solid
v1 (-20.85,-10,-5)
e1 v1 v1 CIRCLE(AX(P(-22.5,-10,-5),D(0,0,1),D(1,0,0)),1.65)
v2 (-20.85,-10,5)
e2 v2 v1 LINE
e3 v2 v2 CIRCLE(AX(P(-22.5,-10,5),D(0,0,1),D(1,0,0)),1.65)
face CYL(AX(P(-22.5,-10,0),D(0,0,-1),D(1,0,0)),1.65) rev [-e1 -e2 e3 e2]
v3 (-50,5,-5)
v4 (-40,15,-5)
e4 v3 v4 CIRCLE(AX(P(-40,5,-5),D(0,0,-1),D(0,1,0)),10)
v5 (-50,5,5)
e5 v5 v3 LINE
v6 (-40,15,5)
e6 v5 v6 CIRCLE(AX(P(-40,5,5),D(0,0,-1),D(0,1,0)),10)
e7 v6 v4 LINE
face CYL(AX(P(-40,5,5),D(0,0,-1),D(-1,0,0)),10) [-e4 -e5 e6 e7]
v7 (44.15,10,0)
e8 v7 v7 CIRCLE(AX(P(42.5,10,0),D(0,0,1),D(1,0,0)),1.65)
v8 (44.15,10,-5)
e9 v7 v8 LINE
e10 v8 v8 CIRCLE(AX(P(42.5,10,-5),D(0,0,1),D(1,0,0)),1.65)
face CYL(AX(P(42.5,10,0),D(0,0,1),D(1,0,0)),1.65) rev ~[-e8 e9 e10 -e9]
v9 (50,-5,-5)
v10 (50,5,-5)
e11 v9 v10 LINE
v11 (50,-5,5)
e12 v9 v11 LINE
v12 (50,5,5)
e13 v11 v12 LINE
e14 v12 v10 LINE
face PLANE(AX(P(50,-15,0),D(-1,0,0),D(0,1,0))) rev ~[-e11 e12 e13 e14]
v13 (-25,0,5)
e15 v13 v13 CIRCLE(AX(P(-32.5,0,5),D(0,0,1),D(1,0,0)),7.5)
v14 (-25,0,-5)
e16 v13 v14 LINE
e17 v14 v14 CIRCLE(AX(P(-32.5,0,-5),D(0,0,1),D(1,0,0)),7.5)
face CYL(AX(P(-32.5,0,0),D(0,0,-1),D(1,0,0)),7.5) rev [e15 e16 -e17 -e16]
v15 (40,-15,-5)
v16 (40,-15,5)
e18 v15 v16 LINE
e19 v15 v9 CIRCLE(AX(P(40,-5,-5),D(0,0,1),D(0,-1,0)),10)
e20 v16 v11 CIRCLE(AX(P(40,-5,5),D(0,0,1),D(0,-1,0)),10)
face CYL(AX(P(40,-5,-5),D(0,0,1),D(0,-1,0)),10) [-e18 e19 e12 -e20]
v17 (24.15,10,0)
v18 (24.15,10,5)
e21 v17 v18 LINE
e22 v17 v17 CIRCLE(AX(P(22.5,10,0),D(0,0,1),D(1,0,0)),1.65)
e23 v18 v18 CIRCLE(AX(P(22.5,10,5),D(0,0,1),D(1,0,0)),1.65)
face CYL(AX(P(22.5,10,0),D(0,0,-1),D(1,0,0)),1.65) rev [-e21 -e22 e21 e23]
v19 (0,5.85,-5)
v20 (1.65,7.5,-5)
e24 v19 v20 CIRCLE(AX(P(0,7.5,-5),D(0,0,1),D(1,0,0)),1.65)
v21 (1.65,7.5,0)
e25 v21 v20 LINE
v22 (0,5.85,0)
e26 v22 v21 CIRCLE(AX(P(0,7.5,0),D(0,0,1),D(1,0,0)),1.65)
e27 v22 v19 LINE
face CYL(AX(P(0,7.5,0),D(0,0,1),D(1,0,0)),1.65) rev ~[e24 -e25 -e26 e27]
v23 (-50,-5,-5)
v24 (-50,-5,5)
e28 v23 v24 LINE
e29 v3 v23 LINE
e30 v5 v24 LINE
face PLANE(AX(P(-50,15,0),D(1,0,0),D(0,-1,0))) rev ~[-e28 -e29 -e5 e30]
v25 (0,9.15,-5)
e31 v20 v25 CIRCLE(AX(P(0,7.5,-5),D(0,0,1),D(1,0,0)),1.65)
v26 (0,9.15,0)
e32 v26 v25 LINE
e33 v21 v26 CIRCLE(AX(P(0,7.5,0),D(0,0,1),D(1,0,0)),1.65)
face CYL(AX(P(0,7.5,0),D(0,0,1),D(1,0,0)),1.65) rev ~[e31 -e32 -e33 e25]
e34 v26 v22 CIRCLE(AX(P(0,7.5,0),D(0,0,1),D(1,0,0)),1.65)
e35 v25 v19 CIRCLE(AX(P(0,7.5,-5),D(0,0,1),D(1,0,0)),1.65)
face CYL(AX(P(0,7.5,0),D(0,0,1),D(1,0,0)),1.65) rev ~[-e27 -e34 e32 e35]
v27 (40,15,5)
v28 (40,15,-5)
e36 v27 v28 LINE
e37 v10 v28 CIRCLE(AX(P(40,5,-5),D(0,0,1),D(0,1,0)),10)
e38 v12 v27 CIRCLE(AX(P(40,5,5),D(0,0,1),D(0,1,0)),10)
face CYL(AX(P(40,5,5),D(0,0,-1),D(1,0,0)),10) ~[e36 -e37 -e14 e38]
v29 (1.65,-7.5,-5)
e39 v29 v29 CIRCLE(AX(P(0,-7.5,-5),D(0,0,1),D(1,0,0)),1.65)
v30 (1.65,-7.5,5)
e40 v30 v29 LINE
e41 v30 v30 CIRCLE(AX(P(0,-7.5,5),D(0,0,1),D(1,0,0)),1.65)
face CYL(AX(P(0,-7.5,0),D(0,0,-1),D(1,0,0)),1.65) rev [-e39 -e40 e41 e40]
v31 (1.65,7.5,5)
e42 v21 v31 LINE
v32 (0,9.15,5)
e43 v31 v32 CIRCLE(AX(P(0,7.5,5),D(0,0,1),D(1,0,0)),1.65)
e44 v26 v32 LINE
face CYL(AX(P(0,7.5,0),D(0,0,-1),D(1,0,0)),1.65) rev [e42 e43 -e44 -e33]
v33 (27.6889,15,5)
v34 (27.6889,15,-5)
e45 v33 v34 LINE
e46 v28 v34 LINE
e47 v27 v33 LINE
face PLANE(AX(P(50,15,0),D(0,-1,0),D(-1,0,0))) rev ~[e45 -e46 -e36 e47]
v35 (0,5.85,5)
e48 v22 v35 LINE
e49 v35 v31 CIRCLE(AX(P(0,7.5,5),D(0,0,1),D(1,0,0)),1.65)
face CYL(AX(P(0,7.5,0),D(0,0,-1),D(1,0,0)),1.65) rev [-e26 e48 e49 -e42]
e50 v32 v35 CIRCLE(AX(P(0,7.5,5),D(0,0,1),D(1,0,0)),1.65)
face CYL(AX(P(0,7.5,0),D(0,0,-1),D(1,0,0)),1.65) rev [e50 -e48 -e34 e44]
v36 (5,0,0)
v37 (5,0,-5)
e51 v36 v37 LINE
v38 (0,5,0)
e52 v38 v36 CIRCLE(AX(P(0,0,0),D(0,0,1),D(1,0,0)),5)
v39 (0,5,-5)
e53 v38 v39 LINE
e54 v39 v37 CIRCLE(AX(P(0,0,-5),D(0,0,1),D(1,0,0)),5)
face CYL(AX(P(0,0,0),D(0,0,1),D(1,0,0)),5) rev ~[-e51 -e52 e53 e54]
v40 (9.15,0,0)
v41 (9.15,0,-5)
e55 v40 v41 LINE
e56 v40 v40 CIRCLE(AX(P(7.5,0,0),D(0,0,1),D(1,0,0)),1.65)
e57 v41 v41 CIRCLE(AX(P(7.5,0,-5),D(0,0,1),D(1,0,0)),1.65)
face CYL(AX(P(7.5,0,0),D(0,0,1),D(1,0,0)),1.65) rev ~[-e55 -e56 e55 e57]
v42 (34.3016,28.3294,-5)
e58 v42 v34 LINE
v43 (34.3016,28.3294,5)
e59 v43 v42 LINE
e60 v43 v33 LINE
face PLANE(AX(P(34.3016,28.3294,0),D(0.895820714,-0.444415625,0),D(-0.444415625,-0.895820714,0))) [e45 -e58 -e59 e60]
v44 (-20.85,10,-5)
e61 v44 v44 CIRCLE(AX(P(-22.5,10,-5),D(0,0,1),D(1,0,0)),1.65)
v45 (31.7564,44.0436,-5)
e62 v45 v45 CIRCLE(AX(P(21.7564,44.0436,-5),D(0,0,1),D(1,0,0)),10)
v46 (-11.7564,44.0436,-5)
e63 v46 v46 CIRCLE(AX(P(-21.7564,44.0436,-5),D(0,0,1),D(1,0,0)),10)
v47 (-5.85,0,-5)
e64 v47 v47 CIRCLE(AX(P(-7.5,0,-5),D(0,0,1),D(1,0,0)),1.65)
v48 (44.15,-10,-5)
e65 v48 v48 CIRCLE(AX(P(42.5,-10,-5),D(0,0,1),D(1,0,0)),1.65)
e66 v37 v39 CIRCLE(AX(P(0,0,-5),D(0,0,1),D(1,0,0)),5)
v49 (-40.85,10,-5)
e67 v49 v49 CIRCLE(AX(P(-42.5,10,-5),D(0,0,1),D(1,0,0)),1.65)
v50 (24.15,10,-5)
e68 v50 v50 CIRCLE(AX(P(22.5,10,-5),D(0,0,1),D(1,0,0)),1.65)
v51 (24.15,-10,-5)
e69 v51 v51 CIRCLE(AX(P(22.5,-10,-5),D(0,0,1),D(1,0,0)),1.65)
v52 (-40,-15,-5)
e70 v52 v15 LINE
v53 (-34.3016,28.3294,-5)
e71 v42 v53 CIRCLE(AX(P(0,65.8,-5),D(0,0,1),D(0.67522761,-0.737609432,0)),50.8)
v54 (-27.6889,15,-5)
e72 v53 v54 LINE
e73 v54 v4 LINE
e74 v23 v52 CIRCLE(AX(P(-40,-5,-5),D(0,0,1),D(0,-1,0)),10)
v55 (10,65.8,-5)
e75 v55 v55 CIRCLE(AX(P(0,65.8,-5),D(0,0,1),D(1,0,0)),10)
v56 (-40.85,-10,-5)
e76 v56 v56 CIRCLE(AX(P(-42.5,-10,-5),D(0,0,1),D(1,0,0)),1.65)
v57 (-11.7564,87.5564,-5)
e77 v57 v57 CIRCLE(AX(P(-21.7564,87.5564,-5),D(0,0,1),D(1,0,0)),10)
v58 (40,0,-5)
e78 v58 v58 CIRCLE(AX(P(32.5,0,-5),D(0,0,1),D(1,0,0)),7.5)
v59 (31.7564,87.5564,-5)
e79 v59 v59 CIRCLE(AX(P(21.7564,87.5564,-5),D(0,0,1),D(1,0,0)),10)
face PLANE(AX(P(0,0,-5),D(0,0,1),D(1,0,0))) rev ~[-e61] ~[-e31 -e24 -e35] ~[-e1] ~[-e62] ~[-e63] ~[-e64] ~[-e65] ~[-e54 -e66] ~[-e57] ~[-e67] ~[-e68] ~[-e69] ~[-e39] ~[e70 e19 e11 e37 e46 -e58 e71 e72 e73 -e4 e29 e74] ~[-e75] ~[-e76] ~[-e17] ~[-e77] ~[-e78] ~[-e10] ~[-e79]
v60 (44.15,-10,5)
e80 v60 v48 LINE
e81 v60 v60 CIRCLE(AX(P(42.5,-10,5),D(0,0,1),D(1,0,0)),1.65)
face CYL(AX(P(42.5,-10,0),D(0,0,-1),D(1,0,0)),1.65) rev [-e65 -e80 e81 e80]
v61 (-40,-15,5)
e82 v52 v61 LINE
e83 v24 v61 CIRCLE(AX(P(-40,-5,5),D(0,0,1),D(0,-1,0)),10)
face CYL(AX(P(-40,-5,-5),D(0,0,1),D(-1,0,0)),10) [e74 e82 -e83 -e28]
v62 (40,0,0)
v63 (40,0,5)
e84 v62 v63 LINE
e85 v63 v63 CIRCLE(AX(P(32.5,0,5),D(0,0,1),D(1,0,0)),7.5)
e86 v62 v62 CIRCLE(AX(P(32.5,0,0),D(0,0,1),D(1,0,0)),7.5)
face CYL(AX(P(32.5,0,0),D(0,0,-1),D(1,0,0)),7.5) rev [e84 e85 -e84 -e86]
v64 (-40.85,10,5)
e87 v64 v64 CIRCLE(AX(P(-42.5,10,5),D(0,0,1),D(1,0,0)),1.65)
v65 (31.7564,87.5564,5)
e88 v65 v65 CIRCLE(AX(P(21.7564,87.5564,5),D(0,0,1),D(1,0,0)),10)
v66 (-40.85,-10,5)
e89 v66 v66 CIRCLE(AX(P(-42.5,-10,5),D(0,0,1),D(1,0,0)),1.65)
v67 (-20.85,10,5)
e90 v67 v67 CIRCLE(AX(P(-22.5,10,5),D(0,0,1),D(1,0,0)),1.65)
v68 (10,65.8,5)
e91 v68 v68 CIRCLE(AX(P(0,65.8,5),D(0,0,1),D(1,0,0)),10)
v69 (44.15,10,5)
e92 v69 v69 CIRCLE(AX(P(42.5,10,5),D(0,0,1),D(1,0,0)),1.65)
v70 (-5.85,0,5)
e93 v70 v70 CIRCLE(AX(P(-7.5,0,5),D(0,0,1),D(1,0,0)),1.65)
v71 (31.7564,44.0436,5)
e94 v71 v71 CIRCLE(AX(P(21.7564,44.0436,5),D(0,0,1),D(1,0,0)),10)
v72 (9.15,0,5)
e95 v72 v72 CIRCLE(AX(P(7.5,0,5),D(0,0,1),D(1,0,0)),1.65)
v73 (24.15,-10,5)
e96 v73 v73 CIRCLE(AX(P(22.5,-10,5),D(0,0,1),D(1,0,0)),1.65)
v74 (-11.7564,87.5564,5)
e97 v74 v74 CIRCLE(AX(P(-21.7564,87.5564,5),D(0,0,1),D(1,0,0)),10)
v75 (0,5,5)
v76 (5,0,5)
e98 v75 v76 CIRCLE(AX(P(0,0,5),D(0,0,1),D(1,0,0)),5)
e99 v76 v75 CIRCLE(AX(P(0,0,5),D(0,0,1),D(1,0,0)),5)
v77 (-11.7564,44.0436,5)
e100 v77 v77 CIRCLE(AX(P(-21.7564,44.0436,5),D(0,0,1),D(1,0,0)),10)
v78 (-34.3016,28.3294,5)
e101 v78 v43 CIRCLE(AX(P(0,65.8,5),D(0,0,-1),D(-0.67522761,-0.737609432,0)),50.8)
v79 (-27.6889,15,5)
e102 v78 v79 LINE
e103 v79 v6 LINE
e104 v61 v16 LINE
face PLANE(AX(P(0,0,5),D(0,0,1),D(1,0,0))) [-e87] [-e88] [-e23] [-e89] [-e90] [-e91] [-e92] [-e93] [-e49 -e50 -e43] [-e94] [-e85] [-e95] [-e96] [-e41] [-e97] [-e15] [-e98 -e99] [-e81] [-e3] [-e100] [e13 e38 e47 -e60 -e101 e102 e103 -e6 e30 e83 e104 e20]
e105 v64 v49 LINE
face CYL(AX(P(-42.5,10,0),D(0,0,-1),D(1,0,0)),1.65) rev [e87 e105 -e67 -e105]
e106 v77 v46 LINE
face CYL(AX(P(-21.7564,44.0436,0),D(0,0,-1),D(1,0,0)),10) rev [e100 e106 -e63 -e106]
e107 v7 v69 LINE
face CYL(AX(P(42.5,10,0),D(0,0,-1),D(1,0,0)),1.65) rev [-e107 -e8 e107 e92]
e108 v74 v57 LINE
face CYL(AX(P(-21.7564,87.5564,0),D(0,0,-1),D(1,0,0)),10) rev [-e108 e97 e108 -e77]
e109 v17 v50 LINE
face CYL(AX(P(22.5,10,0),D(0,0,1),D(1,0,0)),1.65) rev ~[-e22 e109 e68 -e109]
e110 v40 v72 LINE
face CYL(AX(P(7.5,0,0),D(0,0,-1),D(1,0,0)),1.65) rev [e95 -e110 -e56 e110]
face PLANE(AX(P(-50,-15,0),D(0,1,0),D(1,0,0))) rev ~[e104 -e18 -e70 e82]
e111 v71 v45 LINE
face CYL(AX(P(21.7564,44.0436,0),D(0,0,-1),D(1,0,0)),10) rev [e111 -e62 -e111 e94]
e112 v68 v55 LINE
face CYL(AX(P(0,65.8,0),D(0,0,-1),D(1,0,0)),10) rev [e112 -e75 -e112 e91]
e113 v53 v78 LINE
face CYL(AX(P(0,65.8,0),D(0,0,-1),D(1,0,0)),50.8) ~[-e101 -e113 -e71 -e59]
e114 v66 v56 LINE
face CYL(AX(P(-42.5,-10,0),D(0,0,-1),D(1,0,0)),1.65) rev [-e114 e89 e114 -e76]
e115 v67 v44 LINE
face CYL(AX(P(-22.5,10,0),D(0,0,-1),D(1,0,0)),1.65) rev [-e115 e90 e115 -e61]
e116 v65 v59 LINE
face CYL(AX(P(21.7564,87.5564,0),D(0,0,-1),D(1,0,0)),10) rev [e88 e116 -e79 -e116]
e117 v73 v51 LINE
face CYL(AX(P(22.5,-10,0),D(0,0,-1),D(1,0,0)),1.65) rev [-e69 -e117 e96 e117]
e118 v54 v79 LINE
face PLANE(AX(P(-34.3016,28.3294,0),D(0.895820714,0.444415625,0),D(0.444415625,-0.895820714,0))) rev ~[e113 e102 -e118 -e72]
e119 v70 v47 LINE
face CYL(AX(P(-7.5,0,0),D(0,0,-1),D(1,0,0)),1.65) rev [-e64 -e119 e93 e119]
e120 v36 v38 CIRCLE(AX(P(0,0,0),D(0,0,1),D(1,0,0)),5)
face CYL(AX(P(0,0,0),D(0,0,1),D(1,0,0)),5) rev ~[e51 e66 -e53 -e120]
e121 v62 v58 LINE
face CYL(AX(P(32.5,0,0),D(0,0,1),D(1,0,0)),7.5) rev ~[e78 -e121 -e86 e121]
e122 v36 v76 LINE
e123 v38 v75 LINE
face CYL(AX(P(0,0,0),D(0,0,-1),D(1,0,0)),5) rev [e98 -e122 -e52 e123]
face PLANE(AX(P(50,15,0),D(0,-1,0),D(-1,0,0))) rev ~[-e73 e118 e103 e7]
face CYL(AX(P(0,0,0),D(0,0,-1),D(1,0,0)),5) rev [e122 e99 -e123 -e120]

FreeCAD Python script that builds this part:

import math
import FreeCAD as App
import Part
import Sketcher

V = App.Vector


def edges_at(feature, points):
    """Names of the edges that pass closest to the given points."""
    edges = feature.Shape.Edges
    near = lambda p: min(range(len(edges)), key=lambda i: edges[i].distToShape(Part.Vertex(*p))[0])
    return sorted({f"Edge{near(p) + 1}" for p in points})


def add_polygon(sketch, points):
    """Adds a closed chain of lines whose ends are joined by coincident constraints."""
    first, n = sketch.GeometryCount, len(points)
    for a, b in zip(points, points[1:] + points[:1]):
        sketch.addGeometry(Part.LineSegment(App.Vector(*a, 0), App.Vector(*b, 0)), False)
    for i in range(n):
        sketch.addConstraint(Sketcher.Constraint("Coincident", first + i, 2, first + (i + 1) % n, 1))

doc = App.newDocument("Part")
params = doc.addObject("Spreadsheet::Sheet", "Params")
for row, (alias, value) in enumerate([
    ("sketch1_diameter", "15 mm"),
    ("sketch1_diameter2", "10 mm"),
    ("sketch1_diameter3", "3.3 mm"),
    ("sketch1_width", "100 mm"),
    ("sketch1_height", "30 mm"),
    ("pad1_length", "10 mm"),
    ("sketch2_diameter", "20 mm"),
    ("sketch2_radius", "50.8 mm"),
    ("pad2_length", "10 mm"),
    ("fillet_radius", "10 mm"),
], start=1):
    params.set(f"A{row}", alias)
    params.set(f"B{row}", "=" + value)
    params.setAlias(f"B{row}", alias)

body = doc.addObject("PartDesign::Body", "Body")

sketch1 = doc.addObject("Sketcher::SketchObject", "Sketch")
body.addObject(sketch1)
sketch1.AttachmentSupport = (doc.XY_Plane, [""])
sketch1.MapMode = "FlatFace"
add_polygon(sketch1, [(-50, 15), (-50, -15), (50, -15), (50, 15)])
sketch1.addGeometry(Part.Circle(V(-42.5, -10, 0), V(0, 0, 1), 1.6), False)
sketch1.addGeometry(Part.Circle(V(-22.5, -10, 0), V(0, 0, 1), 1.6), False)
sketch1.addGeometry(Part.Circle(V(22.5, -10, 0), V(0, 0, 1), 1.6), False)
sketch1.addGeometry(Part.Circle(V(42.5, -10, 0), V(0, 0, 1), 1.6), False)
sketch1.addGeometry(Part.Circle(V(0, -7.5, 0), V(0, 0, 1), 1.6), False)
sketch1.addGeometry(Part.Circle(V(-32.5, 0, 0), V(0, 0, 1), 7.5), False)
sketch1.addGeometry(Part.Circle(V(-7.5, 0, 0), V(0, 0, 1), 1.6), False)
sketch1.addGeometry(Part.Circle(V(-42.5, 10, 0), V(0, 0, 1), 1.6), False)
sketch1.addGeometry(Part.Circle(V(-22.5, 10, 0), V(0, 0, 1), 1.6), False)
sketch1.addGeometry(Part.Circle(V(0, 0, 0), V(0, 0, 1), 5), False)
sketch1.addGeometry(Part.Circle(V(7.5, 0, 0), V(0, 0, 1), 1.6), False)
sketch1.addGeometry(Part.Circle(V(32.5, 0, 0), V(0, 0, 1), 7.5), False)
sketch1.addGeometry(Part.Circle(V(0, 7.5, 0), V(0, 0, 1), 1.6), False)
sketch1.addGeometry(Part.Circle(V(22.5, 10, 0), V(0, 0, 1), 1.6), False)
sketch1.addGeometry(Part.Circle(V(42.5, 10, 0), V(0, 0, 1), 1.6), False)
sketch1.addConstraint([
    Sketcher.Constraint("Vertical", 0),
    Sketcher.Constraint("Horizontal", 1),
    Sketcher.Constraint("Vertical", 2),
    Sketcher.Constraint("Horizontal", 3),
    Sketcher.Constraint("Coincident", 13, 3, -1, 1),
    Sketcher.Constraint("Equal", 4, 5),
    Sketcher.Constraint("Equal", 5, 6),
    Sketcher.Constraint("Equal", 6, 7),
    Sketcher.Constraint("Equal", 7, 8),
    Sketcher.Constraint("Equal", 8, 10),
    Sketcher.Constraint("Equal", 10, 11),
    Sketcher.Constraint("Equal", 11, 12),
    Sketcher.Constraint("Equal", 12, 14),
    Sketcher.Constraint("Equal", 9, 15),
    Sketcher.Constraint("Equal", 14, 16),
    Sketcher.Constraint("Equal", 16, 17),
    Sketcher.Constraint("Equal", 17, 18),
    Sketcher.Constraint("Symmetric", 7, 3, 11, 3, -1, 1),
    Sketcher.Constraint("Symmetric", 6, 3, 12, 3, -1, 1),
    Sketcher.Constraint("Symmetric", 10, 3, 14, 3, -1, 1),
    Sketcher.Constraint("Symmetric", 9, 3, 15, 3, -1, 1),
    Sketcher.Constraint("Symmetric", 8, 3, 16, 3, -1, 1),
    Sketcher.Constraint("Symmetric", 5, 3, 17, 3, -1, 1),
    Sketcher.Constraint("Symmetric", 4, 3, 18, 3, -1, 1),
    Sketcher.Constraint("Symmetric", 0, 2, 2, 2, -1, 1),
    Sketcher.Constraint("Symmetric", 5, 3, 6, 3, -2),
    Sketcher.Constraint("Symmetric", 4, 3, 7, 3, -2),
    Sketcher.Constraint("PointOnObject", 8, 3, -2),
    Sketcher.Constraint("PointOnObject", 9, 3, -1),
    Sketcher.Constraint("PointOnObject", 10, 3, -1),
    Sketcher.Constraint("Horizontal", 4, 3, 5, 3),
    Sketcher.Constraint("Diameter", 9, 15.0),
    Sketcher.Constraint("Diameter", 13, 10.0),
    Sketcher.Constraint("Diameter", 4, 3.3),
    Sketcher.Constraint("DistanceX", 1, 1, 1, 2, 100.0),
    Sketcher.Constraint("DistanceY", 0, 2, 0, 1, 30.0),
    Sketcher.Constraint("DistanceY", 4, 3, -1, 1, 10.0),
    Sketcher.Constraint("DistanceX", 4, 3, 5, 3, 20.0),
    Sketcher.Constraint("DistanceX", 4, 3, 9, 3, 10.0),
    Sketcher.Constraint("DistanceX", 5, 3, 10, 3, 15.0),
    Sketcher.Constraint("DistanceX", 10, 3, 6, 3, 30.0),
    Sketcher.Constraint("DistanceY", 8, 3, 16, 3, 15.0),
])
sketch1.setExpression("Constraints[35]", "Params.sketch1_diameter")
sketch1.setExpression("Constraints[36]", "Params.sketch1_diameter2")
sketch1.setExpression("Constraints[37]", "Params.sketch1_diameter3")
sketch1.setExpression("Constraints[38]", "Params.sketch1_width")
sketch1.setExpression("Constraints[39]", "Params.sketch1_height")
pad1 = doc.addObject("PartDesign::Pad", "Pad")
body.addObject(pad1)
pad1.Profile = sketch1
pad1.setExpression("Length", "Params.pad1_length")
pad1.Midplane = True

sketch2 = doc.addObject("Sketcher::SketchObject", "Sketch001")
body.addObject(sketch2)
sketch2.AttachmentSupport = (doc.XY_Plane, [""])
sketch2.MapMode = "FlatFace"
sketch2.addGeometry([
    Part.ArcOfCircle(Part.Circle(V(0, 66, 0), V(0, 0, 1), 51), math.radians(-48), math.radians(228)),
    Part.LineSegment(V(-34, 28, 0), V(-28, 15, 0)),
    Part.LineSegment(V(-28, 15, 0), V(28, 15, 0)),
    Part.LineSegment(V(28, 15, 0), V(34, 28, 0)),
    Part.Circle(V(-22, 44, 0), V(0, 0, 1), 10),
    Part.Circle(V(22, 44, 0), V(0, 0, 1), 10),
    Part.Circle(V(0, 66, 0), V(0, 0, 1), 10),
    Part.Circle(V(-22, 88, 0), V(0, 0, 1), 10),
    Part.Circle(V(22, 88, 0), V(0, 0, 1), 10),
], False)
sketch2.addConstraint([
    Sketcher.Constraint("Coincident", 0, 2, 1, 1),
    Sketcher.Constraint("Coincident", 1, 2, 2, 1),
    Sketcher.Constraint("Coincident", 2, 2, 3, 1),
    Sketcher.Constraint("Coincident", 3, 2, 0, 1),
    Sketcher.Constraint("Horizontal", 2),
    Sketcher.Constraint("Coincident", 6, 3, 0, 3),
    Sketcher.Constraint("Equal", 4, 5),
    Sketcher.Constraint("Equal", 5, 6),
    Sketcher.Constraint("Equal", 6, 7),
    Sketcher.Constraint("Equal", 7, 8),
    Sketcher.Constraint("Symmetric", 4, 3, 5, 3, -2),
    Sketcher.Constraint("Symmetric", 7, 3, 8, 3, -2),
    Sketcher.Constraint("Symmetric", 0, 2, 3, 2, -2),
    Sketcher.Constraint("Vertical", 4, 3, 7, 3),
    Sketcher.Constraint("Equal", 1, 3),
    Sketcher.Constraint("Diameter", 4, 20.0),
    Sketcher.Constraint("Radius", 0, 50.8),
    Sketcher.Constraint("DistanceY", -1, 1, 1, 2, 15.0),
    Sketcher.Constraint("DistanceY", -1, 1, 0, 3, 65.8),
    Sketcher.Constraint("DistanceX", 2, 1, 2, 2, 55.3778),
    Sketcher.Constraint("DistanceX", 0, 2, 5, 3, 56.058),
    Sketcher.Constraint("DistanceY", 0, 2, 7, 3, 59.227),
    Sketcher.Constraint("Distance", 1, 14.8795),
    Sketcher.Constraint("DistanceY", -1, 1, 4, 3, 44.0436),
])
sketch2.setExpression("Constraints[15]", "Params.sketch2_diameter")
sketch2.setExpression("Constraints[16]", "Params.sketch2_radius")
pad2 = doc.addObject("PartDesign::Pad", "Pad001")
body.addObject(pad2)
pad2.Profile = sketch2
pad2.setExpression("Length", "Params.pad2_length")
pad2.Midplane = True
doc.recompute()

fillet = doc.addObject("PartDesign::Fillet", "Fillet")
body.addObject(fillet)
fillet.Base = (pad2, edges_at(pad2, [
    (-50, -15, 0),
    (-50, 15, 0),
    (50, 15, 0),
    (50, -15, 0),
]))
fillet.setExpression("Radius", "Params.fillet_radius")

doc.recompute()
